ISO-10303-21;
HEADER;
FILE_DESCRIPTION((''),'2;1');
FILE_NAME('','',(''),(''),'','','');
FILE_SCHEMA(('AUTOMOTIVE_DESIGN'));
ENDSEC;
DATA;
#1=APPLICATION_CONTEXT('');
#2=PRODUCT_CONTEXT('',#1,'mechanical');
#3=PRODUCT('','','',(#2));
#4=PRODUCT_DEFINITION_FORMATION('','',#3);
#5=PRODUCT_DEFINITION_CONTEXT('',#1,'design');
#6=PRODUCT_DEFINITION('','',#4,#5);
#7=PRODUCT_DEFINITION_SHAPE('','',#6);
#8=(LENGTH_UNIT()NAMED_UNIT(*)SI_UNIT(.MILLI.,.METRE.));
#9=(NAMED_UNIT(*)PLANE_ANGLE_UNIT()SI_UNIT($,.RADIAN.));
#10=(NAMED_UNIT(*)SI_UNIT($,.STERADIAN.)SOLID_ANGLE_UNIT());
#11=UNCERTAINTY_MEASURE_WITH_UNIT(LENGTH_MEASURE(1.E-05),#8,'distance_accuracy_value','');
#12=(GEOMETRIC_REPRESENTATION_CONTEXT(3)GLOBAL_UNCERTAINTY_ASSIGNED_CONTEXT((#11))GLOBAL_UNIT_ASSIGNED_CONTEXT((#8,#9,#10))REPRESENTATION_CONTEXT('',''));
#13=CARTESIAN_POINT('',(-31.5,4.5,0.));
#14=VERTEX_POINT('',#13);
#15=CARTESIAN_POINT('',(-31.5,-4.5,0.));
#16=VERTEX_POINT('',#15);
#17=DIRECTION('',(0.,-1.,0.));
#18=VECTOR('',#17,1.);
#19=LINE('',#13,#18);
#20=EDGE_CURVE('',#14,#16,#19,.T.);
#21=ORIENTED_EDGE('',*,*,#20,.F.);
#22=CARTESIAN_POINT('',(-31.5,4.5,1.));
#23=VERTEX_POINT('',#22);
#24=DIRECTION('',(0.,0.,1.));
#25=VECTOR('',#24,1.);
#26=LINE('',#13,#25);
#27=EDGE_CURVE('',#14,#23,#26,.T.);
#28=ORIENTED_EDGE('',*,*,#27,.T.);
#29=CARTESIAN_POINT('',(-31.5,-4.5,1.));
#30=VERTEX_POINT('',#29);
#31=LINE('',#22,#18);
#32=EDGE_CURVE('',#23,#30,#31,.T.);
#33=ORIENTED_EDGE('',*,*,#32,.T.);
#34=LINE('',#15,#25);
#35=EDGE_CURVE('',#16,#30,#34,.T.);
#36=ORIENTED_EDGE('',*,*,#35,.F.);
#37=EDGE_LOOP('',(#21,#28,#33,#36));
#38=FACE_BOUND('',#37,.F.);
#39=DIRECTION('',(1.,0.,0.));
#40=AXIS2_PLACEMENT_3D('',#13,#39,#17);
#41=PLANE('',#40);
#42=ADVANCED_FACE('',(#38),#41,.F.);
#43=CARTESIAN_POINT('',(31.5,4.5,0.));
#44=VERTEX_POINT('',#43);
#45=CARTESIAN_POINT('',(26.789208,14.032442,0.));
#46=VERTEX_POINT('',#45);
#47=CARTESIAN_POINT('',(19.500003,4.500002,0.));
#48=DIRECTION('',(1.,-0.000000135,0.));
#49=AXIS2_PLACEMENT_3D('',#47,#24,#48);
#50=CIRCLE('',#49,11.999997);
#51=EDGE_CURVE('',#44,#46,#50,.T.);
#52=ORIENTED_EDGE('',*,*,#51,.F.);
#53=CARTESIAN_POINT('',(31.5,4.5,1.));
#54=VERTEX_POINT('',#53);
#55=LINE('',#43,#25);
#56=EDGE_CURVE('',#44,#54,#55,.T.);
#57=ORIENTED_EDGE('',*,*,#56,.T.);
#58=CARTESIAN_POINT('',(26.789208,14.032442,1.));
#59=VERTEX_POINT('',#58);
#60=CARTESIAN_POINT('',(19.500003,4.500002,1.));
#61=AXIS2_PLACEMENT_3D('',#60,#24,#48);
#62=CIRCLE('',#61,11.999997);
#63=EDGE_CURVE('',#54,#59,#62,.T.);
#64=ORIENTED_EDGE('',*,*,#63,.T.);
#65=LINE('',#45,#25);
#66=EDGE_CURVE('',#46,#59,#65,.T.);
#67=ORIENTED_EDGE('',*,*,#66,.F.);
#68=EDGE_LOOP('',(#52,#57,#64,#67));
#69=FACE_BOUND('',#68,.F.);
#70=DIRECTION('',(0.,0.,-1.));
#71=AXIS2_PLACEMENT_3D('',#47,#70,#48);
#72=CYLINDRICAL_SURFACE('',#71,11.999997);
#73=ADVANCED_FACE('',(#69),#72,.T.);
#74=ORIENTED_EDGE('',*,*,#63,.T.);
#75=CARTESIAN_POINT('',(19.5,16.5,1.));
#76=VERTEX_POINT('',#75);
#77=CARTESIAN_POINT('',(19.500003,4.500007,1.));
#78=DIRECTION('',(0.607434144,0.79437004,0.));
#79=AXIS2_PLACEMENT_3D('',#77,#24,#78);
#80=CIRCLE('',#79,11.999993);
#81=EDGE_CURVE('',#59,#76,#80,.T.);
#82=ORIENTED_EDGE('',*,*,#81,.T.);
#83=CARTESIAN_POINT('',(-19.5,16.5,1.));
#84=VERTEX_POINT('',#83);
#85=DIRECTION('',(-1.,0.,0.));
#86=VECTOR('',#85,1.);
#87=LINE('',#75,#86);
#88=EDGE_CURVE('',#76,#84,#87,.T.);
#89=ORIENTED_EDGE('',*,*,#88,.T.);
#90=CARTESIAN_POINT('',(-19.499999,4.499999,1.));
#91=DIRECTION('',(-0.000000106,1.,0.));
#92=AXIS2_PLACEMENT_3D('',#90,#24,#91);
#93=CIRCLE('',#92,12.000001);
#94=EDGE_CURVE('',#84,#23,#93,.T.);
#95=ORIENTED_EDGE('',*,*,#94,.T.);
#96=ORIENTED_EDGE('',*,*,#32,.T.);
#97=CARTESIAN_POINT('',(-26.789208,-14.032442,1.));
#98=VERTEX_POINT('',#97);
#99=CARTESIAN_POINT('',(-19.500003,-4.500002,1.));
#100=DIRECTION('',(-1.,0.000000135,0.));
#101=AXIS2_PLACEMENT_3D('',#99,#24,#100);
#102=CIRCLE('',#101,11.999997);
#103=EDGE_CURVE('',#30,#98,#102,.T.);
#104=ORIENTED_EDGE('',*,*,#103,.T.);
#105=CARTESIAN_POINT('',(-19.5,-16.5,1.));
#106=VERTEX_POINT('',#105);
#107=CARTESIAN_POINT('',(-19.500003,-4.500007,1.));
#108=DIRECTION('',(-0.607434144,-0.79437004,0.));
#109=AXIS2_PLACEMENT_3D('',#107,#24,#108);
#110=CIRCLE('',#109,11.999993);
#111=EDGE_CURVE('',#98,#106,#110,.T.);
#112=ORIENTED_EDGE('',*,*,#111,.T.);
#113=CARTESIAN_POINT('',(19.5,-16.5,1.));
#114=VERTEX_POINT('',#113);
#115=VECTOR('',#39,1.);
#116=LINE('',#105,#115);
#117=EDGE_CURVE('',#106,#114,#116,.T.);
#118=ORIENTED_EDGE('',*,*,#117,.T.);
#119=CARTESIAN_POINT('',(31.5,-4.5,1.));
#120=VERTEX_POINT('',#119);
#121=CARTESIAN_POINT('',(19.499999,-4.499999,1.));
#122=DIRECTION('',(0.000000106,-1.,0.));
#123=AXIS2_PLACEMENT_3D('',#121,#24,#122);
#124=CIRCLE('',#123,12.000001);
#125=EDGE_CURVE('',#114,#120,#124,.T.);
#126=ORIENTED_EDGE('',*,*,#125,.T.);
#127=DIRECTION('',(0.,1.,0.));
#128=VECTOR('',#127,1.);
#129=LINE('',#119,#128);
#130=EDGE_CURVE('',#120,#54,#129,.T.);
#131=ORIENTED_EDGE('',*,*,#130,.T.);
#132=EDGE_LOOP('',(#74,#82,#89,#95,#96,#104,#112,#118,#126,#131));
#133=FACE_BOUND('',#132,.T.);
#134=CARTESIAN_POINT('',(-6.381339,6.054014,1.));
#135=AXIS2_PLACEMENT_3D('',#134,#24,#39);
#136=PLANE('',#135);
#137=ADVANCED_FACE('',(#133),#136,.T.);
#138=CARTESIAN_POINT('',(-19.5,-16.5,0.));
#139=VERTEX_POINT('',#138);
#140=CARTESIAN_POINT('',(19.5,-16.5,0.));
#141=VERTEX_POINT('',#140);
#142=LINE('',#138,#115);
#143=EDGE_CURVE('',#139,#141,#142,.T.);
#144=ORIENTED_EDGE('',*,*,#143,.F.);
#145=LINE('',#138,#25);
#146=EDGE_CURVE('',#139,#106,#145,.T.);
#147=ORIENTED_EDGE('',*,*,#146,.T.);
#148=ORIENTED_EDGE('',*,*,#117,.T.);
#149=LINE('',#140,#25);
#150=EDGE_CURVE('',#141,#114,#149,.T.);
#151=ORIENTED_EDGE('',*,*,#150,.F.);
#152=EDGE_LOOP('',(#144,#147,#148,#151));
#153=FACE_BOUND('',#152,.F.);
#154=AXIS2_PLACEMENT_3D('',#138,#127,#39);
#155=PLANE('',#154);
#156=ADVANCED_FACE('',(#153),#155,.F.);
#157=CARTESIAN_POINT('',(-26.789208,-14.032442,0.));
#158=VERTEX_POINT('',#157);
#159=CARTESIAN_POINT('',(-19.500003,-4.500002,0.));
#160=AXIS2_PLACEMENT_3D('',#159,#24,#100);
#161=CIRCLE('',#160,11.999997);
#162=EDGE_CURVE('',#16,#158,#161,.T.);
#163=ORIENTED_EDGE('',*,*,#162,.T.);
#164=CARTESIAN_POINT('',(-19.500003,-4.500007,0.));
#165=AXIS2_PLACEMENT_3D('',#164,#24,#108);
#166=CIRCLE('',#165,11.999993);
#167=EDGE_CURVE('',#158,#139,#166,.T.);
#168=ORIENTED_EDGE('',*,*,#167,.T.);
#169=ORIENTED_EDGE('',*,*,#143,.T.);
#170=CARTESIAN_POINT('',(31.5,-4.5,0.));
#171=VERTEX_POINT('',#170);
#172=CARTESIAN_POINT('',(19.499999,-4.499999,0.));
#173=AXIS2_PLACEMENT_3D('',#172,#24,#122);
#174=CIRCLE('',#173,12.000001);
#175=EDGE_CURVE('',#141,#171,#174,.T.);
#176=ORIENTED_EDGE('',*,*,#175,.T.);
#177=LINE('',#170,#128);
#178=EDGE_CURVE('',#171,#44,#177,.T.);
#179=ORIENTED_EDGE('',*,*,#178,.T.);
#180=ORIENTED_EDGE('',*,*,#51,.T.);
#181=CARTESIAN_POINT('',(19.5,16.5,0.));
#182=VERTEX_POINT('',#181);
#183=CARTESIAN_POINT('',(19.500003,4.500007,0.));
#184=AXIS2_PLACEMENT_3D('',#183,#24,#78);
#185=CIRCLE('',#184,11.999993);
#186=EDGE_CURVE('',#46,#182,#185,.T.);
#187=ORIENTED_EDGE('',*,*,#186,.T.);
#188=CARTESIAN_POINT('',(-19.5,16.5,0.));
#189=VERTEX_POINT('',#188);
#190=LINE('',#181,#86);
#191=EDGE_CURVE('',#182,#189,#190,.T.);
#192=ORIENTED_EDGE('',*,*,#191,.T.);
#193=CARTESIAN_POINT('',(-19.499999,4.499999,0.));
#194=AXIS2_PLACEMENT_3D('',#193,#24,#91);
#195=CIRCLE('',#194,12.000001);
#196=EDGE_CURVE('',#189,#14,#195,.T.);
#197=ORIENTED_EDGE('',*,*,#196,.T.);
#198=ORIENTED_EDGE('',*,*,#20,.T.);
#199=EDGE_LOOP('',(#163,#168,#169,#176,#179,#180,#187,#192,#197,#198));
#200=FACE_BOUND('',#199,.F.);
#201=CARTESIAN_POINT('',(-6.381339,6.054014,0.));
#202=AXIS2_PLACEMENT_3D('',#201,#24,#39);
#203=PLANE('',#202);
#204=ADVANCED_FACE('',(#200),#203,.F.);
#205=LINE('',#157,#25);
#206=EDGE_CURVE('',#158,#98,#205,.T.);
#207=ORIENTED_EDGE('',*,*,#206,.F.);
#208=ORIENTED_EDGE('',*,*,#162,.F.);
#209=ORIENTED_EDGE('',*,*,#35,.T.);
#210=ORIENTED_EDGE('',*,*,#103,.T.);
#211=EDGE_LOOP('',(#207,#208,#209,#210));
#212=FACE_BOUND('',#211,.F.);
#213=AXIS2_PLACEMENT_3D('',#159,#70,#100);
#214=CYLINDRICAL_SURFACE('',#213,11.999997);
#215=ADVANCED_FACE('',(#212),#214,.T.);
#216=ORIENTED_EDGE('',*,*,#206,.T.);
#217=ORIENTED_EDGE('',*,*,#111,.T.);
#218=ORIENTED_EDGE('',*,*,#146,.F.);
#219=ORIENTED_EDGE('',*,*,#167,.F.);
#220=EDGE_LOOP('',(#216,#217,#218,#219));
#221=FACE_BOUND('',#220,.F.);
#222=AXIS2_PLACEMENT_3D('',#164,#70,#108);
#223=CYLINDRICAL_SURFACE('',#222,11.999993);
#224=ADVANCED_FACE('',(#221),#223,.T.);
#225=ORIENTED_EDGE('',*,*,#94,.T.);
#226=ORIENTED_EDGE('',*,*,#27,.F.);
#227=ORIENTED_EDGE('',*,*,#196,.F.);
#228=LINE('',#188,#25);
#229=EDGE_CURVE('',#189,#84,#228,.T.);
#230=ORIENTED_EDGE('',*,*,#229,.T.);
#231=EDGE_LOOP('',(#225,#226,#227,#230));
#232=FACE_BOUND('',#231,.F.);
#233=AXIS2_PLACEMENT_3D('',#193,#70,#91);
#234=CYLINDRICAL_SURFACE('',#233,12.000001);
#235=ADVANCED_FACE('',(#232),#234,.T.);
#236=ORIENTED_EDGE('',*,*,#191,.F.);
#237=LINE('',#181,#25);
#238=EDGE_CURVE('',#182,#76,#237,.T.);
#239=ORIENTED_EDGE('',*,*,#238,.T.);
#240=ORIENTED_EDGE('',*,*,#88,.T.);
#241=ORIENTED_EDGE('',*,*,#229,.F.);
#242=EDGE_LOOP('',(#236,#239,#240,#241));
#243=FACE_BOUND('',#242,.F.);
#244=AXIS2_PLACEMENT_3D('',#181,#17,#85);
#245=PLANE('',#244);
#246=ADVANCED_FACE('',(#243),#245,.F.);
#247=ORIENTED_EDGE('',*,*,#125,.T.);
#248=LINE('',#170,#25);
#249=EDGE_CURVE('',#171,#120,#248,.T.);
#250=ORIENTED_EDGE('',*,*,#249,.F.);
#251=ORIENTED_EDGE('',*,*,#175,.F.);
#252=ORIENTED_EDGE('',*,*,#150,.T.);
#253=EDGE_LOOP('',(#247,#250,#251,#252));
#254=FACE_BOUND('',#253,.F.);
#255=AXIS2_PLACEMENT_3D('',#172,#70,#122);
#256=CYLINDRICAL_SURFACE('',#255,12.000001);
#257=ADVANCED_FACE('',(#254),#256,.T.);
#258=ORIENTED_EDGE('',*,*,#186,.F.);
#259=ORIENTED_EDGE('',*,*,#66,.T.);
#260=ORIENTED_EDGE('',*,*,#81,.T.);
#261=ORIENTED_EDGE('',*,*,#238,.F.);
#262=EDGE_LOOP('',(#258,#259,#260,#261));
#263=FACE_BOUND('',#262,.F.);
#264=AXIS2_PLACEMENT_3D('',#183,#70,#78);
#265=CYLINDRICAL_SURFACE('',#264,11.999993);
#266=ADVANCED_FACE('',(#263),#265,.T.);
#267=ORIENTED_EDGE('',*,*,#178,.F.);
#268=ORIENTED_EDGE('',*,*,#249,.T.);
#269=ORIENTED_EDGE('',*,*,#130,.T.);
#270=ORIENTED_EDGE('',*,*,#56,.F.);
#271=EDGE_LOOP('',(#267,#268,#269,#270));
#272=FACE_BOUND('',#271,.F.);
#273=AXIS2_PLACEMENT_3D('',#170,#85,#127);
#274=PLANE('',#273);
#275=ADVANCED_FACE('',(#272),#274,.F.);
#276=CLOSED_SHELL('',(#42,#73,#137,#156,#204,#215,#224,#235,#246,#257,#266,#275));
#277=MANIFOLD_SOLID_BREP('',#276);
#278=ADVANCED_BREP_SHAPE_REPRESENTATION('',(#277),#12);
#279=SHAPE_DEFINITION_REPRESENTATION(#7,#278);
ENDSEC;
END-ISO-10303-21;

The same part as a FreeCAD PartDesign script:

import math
import FreeCAD as App
import Part
import Sketcher

V = App.Vector
Q = App.Units.Quantity

doc = App.newDocument("Part")
body = doc.addObject("PartDesign::Body", "Body")

sketch1 = body.newObject("Sketcher::SketchObject", "Sketch")
sketch1.AttachmentSupport = (doc.getObject("XY_Plane"), [""])
sketch1.MapMode = "FlatFace"
sketch1.addGeometry(Part.LineSegment(V(20, 16, 0), V(-20, 16, 0)), False)
sketch1.addGeometry(Part.ArcOfCircle(Part.Circle(V(-19, 4, 0), V(0, 0, 1), 12), math.radians(90), math.radians(180)), False)
sketch1.addGeometry(Part.LineSegment(V(-32, 4, 0), V(-32, -4, 0)), False)
sketch1.addGeometry(Part.ArcOfCircle(Part.Circle(V(-20, -5, 0), V(0, 0, 1), 12), math.radians(180), math.radians(233)), False)
sketch1.addGeometry(Part.ArcOfCircle(Part.Circle(V(-20, -5, 0), V(0, 0, 1), 12), math.radians(-127), math.radians(-90)), False)
sketch1.addGeometry(Part.LineSegment(V(-20, -16, 0), V(20, -16, 0)), False)
sketch1.addGeometry(Part.ArcOfCircle(Part.Circle(V(19, -4, 0), V(0, 0, 1), 12), math.radians(-90), math.radians(0)), False)
sketch1.addGeometry(Part.LineSegment(V(32, -4, 0), V(32, 4, 0)), False)
sketch1.addGeometry(Part.ArcOfCircle(Part.Circle(V(20, 5, 0), V(0, 0, 1), 12), math.radians(0), math.radians(53)), False)
sketch1.addGeometry(Part.ArcOfCircle(Part.Circle(V(20, 5, 0), V(0, 0, 1), 12), math.radians(53), math.radians(90)), False)
sketch1.addConstraint(Sketcher.Constraint("Tangent", 0, 2, 1, 1))
sketch1.addConstraint(Sketcher.Constraint("Tangent", 1, 2, 2, 1))
sketch1.addConstraint(Sketcher.Constraint("Tangent", 2, 2, 3, 1))
sketch1.addConstraint(Sketcher.Constraint("Tangent", 3, 2, 4, 1))
sketch1.addConstraint(Sketcher.Constraint("Tangent", 4, 2, 5, 1))
sketch1.addConstraint(Sketcher.Constraint("Tangent", 5, 2, 6, 1))
sketch1.addConstraint(Sketcher.Constraint("Tangent", 6, 2, 7, 1))
sketch1.addConstraint(Sketcher.Constraint("Tangent", 7, 2, 8, 1))
sketch1.addConstraint(Sketcher.Constraint("Tangent", 8, 2, 9, 1))
sketch1.addConstraint(Sketcher.Constraint("Tangent", 9, 2, 0, 1))
sketch1.addConstraint(Sketcher.Constraint("Horizontal", 0))
sketch1.addConstraint(Sketcher.Constraint("Vertical", 2))
sketch1.addConstraint(Sketcher.Constraint("Horizontal", 5))
sketch1.addConstraint(Sketcher.Constraint("Vertical", 7))
sketch1.addConstraint(Sketcher.Constraint("Equal", 1, 6))
sketch1.addConstraint(Sketcher.Constraint("Equal", 3, 8))
sketch1.addConstraint(Sketcher.Constraint("Equal", 4, 9))
sketch1.addConstraint(Sketcher.Constraint("Symmetric", 1, 3, 6, 3, -1, 1))
sketch1.addConstraint(Sketcher.Constraint("Symmetric", 3, 3, 6, 3, -2))
sketch1.addConstraint(Sketcher.Constraint("Radius", 1, Q("12.000001 mm")))
sketch1.addConstraint(Sketcher.Constraint("DistanceX", 0, 2, 0, 1, Q("39 mm")))
sketch1.addConstraint(Sketcher.Constraint("DistanceY", 2, 2, 2, 1, Q("9 mm")))
sketch1.addConstraint(Sketcher.Constraint("DistanceX", 3, 2, -1, 1, Q("26.789208 mm")))
sketch1.addConstraint(Sketcher.Constraint("DistanceX", -1, 1, 8, 2, Q("26.789208 mm")))
pad1 = body.newObject("PartDesign::Pad", "Pad")
pad1.Profile = sketch1
pad1.Length = 1

doc.recompute()
